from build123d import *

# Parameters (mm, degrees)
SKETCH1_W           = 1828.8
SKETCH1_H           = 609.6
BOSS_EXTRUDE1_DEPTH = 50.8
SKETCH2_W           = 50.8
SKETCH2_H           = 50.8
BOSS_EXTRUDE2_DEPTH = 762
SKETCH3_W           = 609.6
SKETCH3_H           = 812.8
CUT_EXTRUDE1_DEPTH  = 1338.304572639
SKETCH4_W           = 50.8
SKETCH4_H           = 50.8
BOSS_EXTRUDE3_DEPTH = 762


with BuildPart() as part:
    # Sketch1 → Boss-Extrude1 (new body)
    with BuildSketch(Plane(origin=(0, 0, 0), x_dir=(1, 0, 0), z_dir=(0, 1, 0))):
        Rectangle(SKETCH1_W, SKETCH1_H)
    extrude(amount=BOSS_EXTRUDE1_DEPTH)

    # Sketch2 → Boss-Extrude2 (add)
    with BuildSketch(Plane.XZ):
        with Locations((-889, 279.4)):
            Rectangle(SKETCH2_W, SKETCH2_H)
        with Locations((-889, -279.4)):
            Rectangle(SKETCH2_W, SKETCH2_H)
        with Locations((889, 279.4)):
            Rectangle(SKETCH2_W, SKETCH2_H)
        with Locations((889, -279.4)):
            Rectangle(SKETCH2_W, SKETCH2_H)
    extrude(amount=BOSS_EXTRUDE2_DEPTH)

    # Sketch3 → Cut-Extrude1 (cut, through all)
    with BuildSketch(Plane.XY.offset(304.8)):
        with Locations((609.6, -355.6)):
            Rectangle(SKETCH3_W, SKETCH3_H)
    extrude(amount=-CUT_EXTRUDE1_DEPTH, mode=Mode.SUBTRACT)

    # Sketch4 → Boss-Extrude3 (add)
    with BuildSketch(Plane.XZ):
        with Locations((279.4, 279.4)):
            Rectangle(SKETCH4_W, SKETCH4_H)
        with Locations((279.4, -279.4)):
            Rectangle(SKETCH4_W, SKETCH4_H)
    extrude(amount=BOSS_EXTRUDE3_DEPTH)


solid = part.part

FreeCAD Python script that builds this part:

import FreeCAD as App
import Part
import Sketcher
Q = App.Units.Quantity

doc = App.newDocument("Part")
body = doc.addObject("PartDesign::Body", "Body")

sketch1 = body.newObject("Sketcher::SketchObject", "Sketch")
sketch1.AttachmentSupport = (doc.getObject("XZ_Plane"), [""])
sketch1.MapMode = "FlatFace"
sketch1.addGeometry(Part.LineSegment(App.Vector(-914, -305, 0), App.Vector(-914, 305, 0)), False)
sketch1.addGeometry(Part.LineSegment(App.Vector(-914, 305, 0), App.Vector(914, 305, 0)), False)
sketch1.addGeometry(Part.LineSegment(App.Vector(914, 305, 0), App.Vector(914, -305, 0)), False)
sketch1.addGeometry(Part.LineSegment(App.Vector(914, -305, 0), App.Vector(-914, -305, 0)), False)
sketch1.addConstraint(Sketcher.Constraint("Coincident", 0, 2, 1, 1))
sketch1.addConstraint(Sketcher.Constraint("Coincident", 1, 2, 2, 1))
sketch1.addConstraint(Sketcher.Constraint("Coincident", 2, 2, 3, 1))
sketch1.addConstraint(Sketcher.Constraint("Coincident", 3, 2, 0, 1))
sketch1.addConstraint(Sketcher.Constraint("Vertical", 0))
sketch1.addConstraint(Sketcher.Constraint("Horizontal", 1))
sketch1.addConstraint(Sketcher.Constraint("Vertical", 2))
sketch1.addConstraint(Sketcher.Constraint("Horizontal", 3))
sketch1.addConstraint(Sketcher.Constraint("Symmetric", 0, 2, 2, 2, -1, 1))
sketch1.addConstraint(Sketcher.Constraint("DistanceX", 1, 1, 1, 2, Q("72 in")))
sketch1.addConstraint(Sketcher.Constraint("DistanceY", 0, 1, 0, 2, Q("24 in")))
pad1 = body.newObject("PartDesign::Pad", "Pad")
pad1.Profile = sketch1
pad1.Length = Q("2 in")
pad1.Reversed = True

sketch2 = body.newObject("Sketcher::SketchObject", "Sketch001")
sketch2.AttachmentSupport = (doc.getObject("XZ_Plane"), [""])
sketch2.MapMode = "FlatFace"
sketch2.addGeometry(Part.LineSegment(App.Vector(-914, 305, 0), App.Vector(-914, 254, 0)), False)
sketch2.addGeometry(Part.LineSegment(App.Vector(-914, 254, 0), App.Vector(-864, 254, 0)), False)
sketch2.addGeometry(Part.LineSegment(App.Vector(-864, 254, 0), App.Vector(-864, 305, 0)), False)
sketch2.addGeometry(Part.LineSegment(App.Vector(-864, 305, 0), App.Vector(-914, 305, 0)), False)
sketch2.addGeometry(Part.LineSegment(App.Vector(-914, -254, 0), App.Vector(-914, -305, 0)), False)
sketch2.addGeometry(Part.LineSegment(App.Vector(-914, -305, 0), App.Vector(-864, -305, 0)), False)
sketch2.addGeometry(Part.LineSegment(App.Vector(-864, -305, 0), App.Vector(-864, -254, 0)), False)
sketch2.addGeometry(Part.LineSegment(App.Vector(-864, -254, 0), App.Vector(-914, -254, 0)), False)
sketch2.addGeometry(Part.LineSegment(App.Vector(864, 305, 0), App.Vector(864, 254, 0)), False)
sketch2.addGeometry(Part.LineSegment(App.Vector(864, 254, 0), App.Vector(914, 254, 0)), False)
sketch2.addGeometry(Part.LineSegment(App.Vector(914, 254, 0), App.Vector(914, 305, 0)), False)
sketch2.addGeometry(Part.LineSegment(App.Vector(914, 305, 0), App.Vector(864, 305, 0)), False)
sketch2.addGeometry(Part.LineSegment(App.Vector(864, -254, 0), App.Vector(864, -305, 0)), False)
sketch2.addGeometry(Part.LineSegment(App.Vector(864, -305, 0), App.Vector(914, -305, 0)), False)
sketch2.addGeometry(Part.LineSegment(App.Vector(914, -305, 0), App.Vector(914, -254, 0)), False)
sketch2.addGeometry(Part.LineSegment(App.Vector(914, -254, 0), App.Vector(864, -254, 0)), False)
sketch2.addConstraint(Sketcher.Constraint("Coincident", 0, 2, 1, 1))
sketch2.addConstraint(Sketcher.Constraint("Coincident", 1, 2, 2, 1))
sketch2.addConstraint(Sketcher.Constraint("Coincident", 2, 2, 3, 1))
sketch2.addConstraint(Sketcher.Constraint("Coincident", 3, 2, 0, 1))
sketch2.addConstraint(Sketcher.Constraint("Coincident", 4, 2, 5, 1))
sketch2.addConstraint(Sketcher.Constraint("Coincident", 5, 2, 6, 1))
sketch2.addConstraint(Sketcher.Constraint("Coincident", 6, 2, 7, 1))
sketch2.addConstraint(Sketcher.Constraint("Coincident", 7, 2, 4, 1))
sketch2.addConstraint(Sketcher.Constraint("Coincident", 8, 2, 9, 1))
sketch2.addConstraint(Sketcher.Constraint("Coincident", 9, 2, 10, 1))
sketch2.addConstraint(Sketcher.Constraint("Coincident", 10, 2, 11, 1))
sketch2.addConstraint(Sketcher.Constraint("Coincident", 11, 2, 8, 1))
sketch2.addConstraint(Sketcher.Constraint("Coincident", 12, 2, 13, 1))
sketch2.addConstraint(Sketcher.Constraint("Coincident", 13, 2, 14, 1))
sketch2.addConstraint(Sketcher.Constraint("Coincident", 14, 2, 15, 1))
sketch2.addConstraint(Sketcher.Constraint("Coincident", 15, 2, 12, 1))
sketch2.addConstraint(Sketcher.Constraint("Vertical", 0))
sketch2.addConstraint(Sketcher.Constraint("Horizontal", 1))
sketch2.addConstraint(Sketcher.Constraint("Vertical", 2))
sketch2.addConstraint(Sketcher.Constraint("Horizontal", 3))
sketch2.addConstraint(Sketcher.Constraint("Vertical", 4))
sketch2.addConstraint(Sketcher.Constraint("Horizontal", 5))
sketch2.addConstraint(Sketcher.Constraint("Vertical", 6))
sketch2.addConstraint(Sketcher.Constraint("Horizontal", 7))
sketch2.addConstraint(Sketcher.Constraint("Vertical", 8))
sketch2.addConstraint(Sketcher.Constraint("Horizontal", 9))
sketch2.addConstraint(Sketcher.Constraint("Vertical", 10))
sketch2.addConstraint(Sketcher.Constraint("Horizontal", 11))
sketch2.addConstraint(Sketcher.Constraint("Vertical", 12))
sketch2.addConstraint(Sketcher.Constraint("Horizontal", 13))
sketch2.addConstraint(Sketcher.Constraint("Vertical", 14))
sketch2.addConstraint(Sketcher.Constraint("Horizontal", 15))
sketch2.addConstraint(Sketcher.Constraint("Symmetric", 6, 2, 8, 2, -1, 1))
sketch2.addConstraint(Sketcher.Constraint("Symmetric", 4, 2, 10, 2, -1, 1))
sketch2.addConstraint(Sketcher.Constraint("Symmetric", 2, 2, 12, 2, -1, 1))
sketch2.addConstraint(Sketcher.Constraint("Symmetric", 0, 2, 14, 2, -1, 1))
sketch2.addConstraint(Sketcher.Constraint("Symmetric", 1, 2, 8, 2, -2))
sketch2.addConstraint(Sketcher.Constraint("Symmetric", 3, 2, 10, 2, -2))
sketch2.addConstraint(Sketcher.Constraint("Equal", 15, 0))
sketch2.addConstraint(Sketcher.Constraint("DistanceX", 1, 1, 1, 2, Q("2 in")))
sketch2.addConstraint(Sketcher.Constraint("DistanceX", 0, 2, -1, 1, Q("36 in")))
sketch2.addConstraint(Sketcher.Constraint("DistanceY", -1, 1, 0, 2, Q("10 in")))
pad2 = body.newObject("PartDesign::Pad", "Pad001")
pad2.Profile = sketch2
pad2.Length = Q("30 in")

sketch3 = body.newObject("Sketcher::SketchObject", "Sketch002")
sketch3.AttachmentSupport = (doc.getObject("XY_Plane"), [""])
sketch3.MapMode = "FlatFace"
sketch3.AttachmentOffset = App.Placement(App.Vector(0, 0, 12 * 25.4), App.Rotation())
sketch3.addGeometry(Part.LineSegment(App.Vector(305, 51, 0), App.Vector(305, -762, 0)), False)
sketch3.addGeometry(Part.LineSegment(App.Vector(305, -762, 0), App.Vector(914, -762, 0)), False)
sketch3.addGeometry(Part.LineSegment(App.Vector(914, -762, 0), App.Vector(914, 51, 0)), False)
sketch3.addGeometry(Part.LineSegment(App.Vector(914, 51, 0), App.Vector(305, 51, 0)), False)
sketch3.addConstraint(Sketcher.Constraint("Coincident", 0, 2, 1, 1))
sketch3.addConstraint(Sketcher.Constraint("Coincident", 1, 2, 2, 1))
sketch3.addConstraint(Sketcher.Constraint("Coincident", 2, 2, 3, 1))
sketch3.addConstraint(Sketcher.Constraint("Coincident", 3, 2, 0, 1))
sketch3.addConstraint(Sketcher.Constraint("Vertical", 0))
sketch3.addConstraint(Sketcher.Constraint("Horizontal", 1))
sketch3.addConstraint(Sketcher.Constraint("Vertical", 2))
sketch3.addConstraint(Sketcher.Constraint("Horizontal", 3))
sketch3.addConstraint(Sketcher.Constraint("DistanceX", 1, 1, 1, 2, Q("24 in")))
sketch3.addConstraint(Sketcher.Constraint("DistanceY", 0, 2, 0, 1, Q("32 in")))
sketch3.addConstraint(Sketcher.Constraint("DistanceX", -1, 1, 0, 2, Q("12 in")))
sketch3.addConstraint(Sketcher.Constraint("DistanceY", 0, 2, -1, 1, Q("30 in")))
pocket1 = body.newObject("PartDesign::Pocket", "Pocket")
pocket1.Profile = sketch3
pocket1.Type = "ThroughAll"

sketch4 = body.newObject("Sketcher::SketchObject", "Sketch003")
sketch4.AttachmentSupport = (doc.getObject("XZ_Plane"), [""])
sketch4.MapMode = "FlatFace"
sketch4.addGeometry(Part.LineSegment(App.Vector(254, 305, 0), App.Vector(254, 254, 0)), False)
sketch4.addGeometry(Part.LineSegment(App.Vector(254, 254, 0), App.Vector(305, 254, 0)), False)
sketch4.addGeometry(Part.LineSegment(App.Vector(305, 254, 0), App.Vector(305, 305, 0)), False)
sketch4.addGeometry(Part.LineSegment(App.Vector(305, 305, 0), App.Vector(254, 305, 0)), False)
sketch4.addGeometry(Part.LineSegment(App.Vector(254, -254, 0), App.Vector(254, -305, 0)), False)
sketch4.addGeometry(Part.LineSegment(App.Vector(254, -305, 0), App.Vector(305, -305, 0)), False)
sketch4.addGeometry(Part.LineSegment(App.Vector(305, -305, 0), App.Vector(305, -254, 0)), False)
sketch4.addGeometry(Part.LineSegment(App.Vector(305, -254, 0), App.Vector(254, -254, 0)), False)
sketch4.addConstraint(Sketcher.Constraint("Coincident", 0, 2, 1, 1))
sketch4.addConstraint(Sketcher.Constraint("Coincident", 1, 2, 2, 1))
sketch4.addConstraint(Sketcher.Constraint("Coincident", 2, 2, 3, 1))
sketch4.addConstraint(Sketcher.Constraint("Coincident", 3, 2, 0, 1))
sketch4.addConstraint(Sketcher.Constraint("Coincident", 4, 2, 5, 1))
sketch4.addConstraint(Sketcher.Constraint("Coincident", 5, 2, 6, 1))
sketch4.addConstraint(Sketcher.Constraint("Coincident", 6, 2, 7, 1))
sketch4.addConstraint(Sketcher.Constraint("Coincident", 7, 2, 4, 1))
sketch4.addConstraint(Sketcher.Constraint("Vertical", 0))
sketch4.addConstraint(Sketcher.Constraint("Horizontal", 1))
sketch4.addConstraint(Sketcher.Constraint("Vertical", 2))
sketch4.addConstraint(Sketcher.Constraint("Horizontal", 3))
sketch4.addConstraint(Sketcher.Constraint("Vertical", 4))
sketch4.addConstraint(Sketcher.Constraint("Horizontal", 5))
sketch4.addConstraint(Sketcher.Constraint("Vertical", 6))
sketch4.addConstraint(Sketcher.Constraint("Horizontal", 7))
sketch4.addConstraint(Sketcher.Constraint("Symmetric", 3, 2, 4, 2, -1))
sketch4.addConstraint(Sketcher.Constraint("Symmetric", 1, 2, 6, 2, -1))
sketch4.addConstraint(Sketcher.Constraint("Equal", 7, 0))
sketch4.addConstraint(Sketcher.Constraint("DistanceX", 1, 1, 1, 2, Q("2 in")))
sketch4.addConstraint(Sketcher.Constraint("DistanceX", -1, 1, 0, 2, Q("10 in")))
sketch4.addConstraint(Sketcher.Constraint("DistanceY", -1, 1, 0, 2, Q("10 in")))
pad3 = body.newObject("PartDesign::Pad", "Pad002")
pad3.Profile = sketch4
pad3.Length = Q("30 in")

doc.recompute()
